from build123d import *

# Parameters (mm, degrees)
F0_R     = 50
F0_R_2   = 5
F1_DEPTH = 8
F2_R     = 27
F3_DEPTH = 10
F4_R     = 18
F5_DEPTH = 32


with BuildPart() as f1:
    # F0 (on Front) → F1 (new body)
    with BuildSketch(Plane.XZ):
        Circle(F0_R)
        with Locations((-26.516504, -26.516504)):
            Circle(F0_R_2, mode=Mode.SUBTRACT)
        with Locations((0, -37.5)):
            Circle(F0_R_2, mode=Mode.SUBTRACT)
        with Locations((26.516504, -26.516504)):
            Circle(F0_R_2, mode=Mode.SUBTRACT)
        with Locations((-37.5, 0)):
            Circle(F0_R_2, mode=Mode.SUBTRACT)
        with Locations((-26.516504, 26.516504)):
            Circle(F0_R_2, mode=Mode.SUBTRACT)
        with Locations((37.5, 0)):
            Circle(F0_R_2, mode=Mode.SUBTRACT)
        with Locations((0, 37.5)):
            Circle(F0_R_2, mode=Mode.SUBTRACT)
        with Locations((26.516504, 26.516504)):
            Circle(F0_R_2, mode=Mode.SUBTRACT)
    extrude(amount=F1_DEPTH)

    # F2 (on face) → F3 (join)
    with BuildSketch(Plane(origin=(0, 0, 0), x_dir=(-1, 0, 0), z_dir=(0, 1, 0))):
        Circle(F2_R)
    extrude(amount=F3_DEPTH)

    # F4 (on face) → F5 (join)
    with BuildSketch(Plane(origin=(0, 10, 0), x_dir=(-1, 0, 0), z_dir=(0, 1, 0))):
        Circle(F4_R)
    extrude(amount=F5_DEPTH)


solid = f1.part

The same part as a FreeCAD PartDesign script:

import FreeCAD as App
import Part
import Sketcher

V = App.Vector

doc = App.newDocument("Part")
body = doc.addObject("PartDesign::Body", "Body")

# Sketch on XZ plane
sketch1 = body.newObject("Sketcher::SketchObject", "Sketch")
sketch1.AttachmentSupport = (doc.getObject("XZ_Plane"), [""])
sketch1.MapMode = "FlatFace"
sketch1.addGeometry([
    Part.Circle(V(0, 0, 0), V(0, 0, 1), 50),  # 0
    Part.Circle(V(-27, -27, 0), V(0, 0, 1), 5),  # 1
    Part.Circle(V(0, -38, 0), V(0, 0, 1), 5),  # 2
    Part.Circle(V(27, -27, 0), V(0, 0, 1), 5),  # 3
    Part.Circle(V(-38, 0, 0), V(0, 0, 1), 5),  # 4
    Part.Circle(V(-27, 27, 0), V(0, 0, 1), 5),  # 5
    Part.Circle(V(38, 0, 0), V(0, 0, 1), 5),  # 6
    Part.Circle(V(0, 38, 0), V(0, 0, 1), 5),  # 7
    Part.Circle(V(27, 27, 0), V(0, 0, 1), 5),  # 8
], False)
sketch1.addConstraint([
    Sketcher.Constraint("Coincident", 0, 3, -1, 1),
    Sketcher.Constraint("Equal", 1, 2),
    Sketcher.Constraint("Equal", 2, 3),
    Sketcher.Constraint("Equal", 3, 4),
    Sketcher.Constraint("Equal", 4, 5),
    Sketcher.Constraint("Equal", 5, 6),
    Sketcher.Constraint("Equal", 6, 7),
    Sketcher.Constraint("Equal", 7, 8),
    Sketcher.Constraint("Symmetric", 3, 3, 5, 3, -1, 1),
    Sketcher.Constraint("Symmetric", 4, 3, 6, 3, -1, 1),
    Sketcher.Constraint("Symmetric", 2, 3, 7, 3, -1, 1),
    Sketcher.Constraint("Symmetric", 1, 3, 8, 3, -1, 1),
    Sketcher.Constraint("Symmetric", 1, 3, 3, 3, -2),
    Sketcher.Constraint("PointOnObject", 2, 3, -2),
    Sketcher.Constraint("PointOnObject", 4, 3, -1),
    Sketcher.Constraint("Diameter", 0, 100.0),
    Sketcher.Constraint("Diameter", 1, 10.0),
    Sketcher.Constraint("DistanceY", 2, 3, -1, 1, 37.5),
    Sketcher.Constraint("DistanceX", 4, 3, -1, 1, 37.5),
    Sketcher.Constraint("DistanceX", 1, 3, 3, 3, 53.033008),
    Sketcher.Constraint("DistanceY", 1, 3, 5, 3, 53.033008),
])
pad1 = body.newObject("PartDesign::Pad", "Pad")
pad1.Profile = sketch1
pad1.Length = 8

# Sketch on XZ plane
sketch2 = body.newObject("Sketcher::SketchObject", "Sketch001")
sketch2.AttachmentSupport = (doc.getObject("XZ_Plane"), [""])
sketch2.MapMode = "FlatFace"
sketch2.addGeometry(Part.Circle(V(0, 0, 0), V(0, 0, 1), 27), False)
sketch2.addConstraint([
    Sketcher.Constraint("Coincident", 0, 3, -1, 1),
    Sketcher.Constraint("Diameter", 0, 54.0),
])
pad2 = body.newObject("PartDesign::Pad", "Pad001")
pad2.Profile = sketch2
pad2.Length = 10
pad2.Reversed = True

# Sketch on XZ plane
sketch3 = body.newObject("Sketcher::SketchObject", "Sketch002")
sketch3.AttachmentSupport = (doc.getObject("XZ_Plane"), [""])
sketch3.MapMode = "FlatFace"
sketch3.AttachmentOffset = App.Placement(V(0, 0, -10), App.Rotation())
sketch3.addGeometry(Part.Circle(V(0, 0, 0), V(0, 0, 1), 18), False)
sketch3.addConstraint([
    Sketcher.Constraint("Coincident", 0, 3, -1, 1),
    Sketcher.Constraint("Diameter", 0, 36.0),
])
pad3 = body.newObject("PartDesign::Pad", "Pad002")
pad3.Profile = sketch3
pad3.Length = 32
pad3.Reversed = True

doc.recompute()
